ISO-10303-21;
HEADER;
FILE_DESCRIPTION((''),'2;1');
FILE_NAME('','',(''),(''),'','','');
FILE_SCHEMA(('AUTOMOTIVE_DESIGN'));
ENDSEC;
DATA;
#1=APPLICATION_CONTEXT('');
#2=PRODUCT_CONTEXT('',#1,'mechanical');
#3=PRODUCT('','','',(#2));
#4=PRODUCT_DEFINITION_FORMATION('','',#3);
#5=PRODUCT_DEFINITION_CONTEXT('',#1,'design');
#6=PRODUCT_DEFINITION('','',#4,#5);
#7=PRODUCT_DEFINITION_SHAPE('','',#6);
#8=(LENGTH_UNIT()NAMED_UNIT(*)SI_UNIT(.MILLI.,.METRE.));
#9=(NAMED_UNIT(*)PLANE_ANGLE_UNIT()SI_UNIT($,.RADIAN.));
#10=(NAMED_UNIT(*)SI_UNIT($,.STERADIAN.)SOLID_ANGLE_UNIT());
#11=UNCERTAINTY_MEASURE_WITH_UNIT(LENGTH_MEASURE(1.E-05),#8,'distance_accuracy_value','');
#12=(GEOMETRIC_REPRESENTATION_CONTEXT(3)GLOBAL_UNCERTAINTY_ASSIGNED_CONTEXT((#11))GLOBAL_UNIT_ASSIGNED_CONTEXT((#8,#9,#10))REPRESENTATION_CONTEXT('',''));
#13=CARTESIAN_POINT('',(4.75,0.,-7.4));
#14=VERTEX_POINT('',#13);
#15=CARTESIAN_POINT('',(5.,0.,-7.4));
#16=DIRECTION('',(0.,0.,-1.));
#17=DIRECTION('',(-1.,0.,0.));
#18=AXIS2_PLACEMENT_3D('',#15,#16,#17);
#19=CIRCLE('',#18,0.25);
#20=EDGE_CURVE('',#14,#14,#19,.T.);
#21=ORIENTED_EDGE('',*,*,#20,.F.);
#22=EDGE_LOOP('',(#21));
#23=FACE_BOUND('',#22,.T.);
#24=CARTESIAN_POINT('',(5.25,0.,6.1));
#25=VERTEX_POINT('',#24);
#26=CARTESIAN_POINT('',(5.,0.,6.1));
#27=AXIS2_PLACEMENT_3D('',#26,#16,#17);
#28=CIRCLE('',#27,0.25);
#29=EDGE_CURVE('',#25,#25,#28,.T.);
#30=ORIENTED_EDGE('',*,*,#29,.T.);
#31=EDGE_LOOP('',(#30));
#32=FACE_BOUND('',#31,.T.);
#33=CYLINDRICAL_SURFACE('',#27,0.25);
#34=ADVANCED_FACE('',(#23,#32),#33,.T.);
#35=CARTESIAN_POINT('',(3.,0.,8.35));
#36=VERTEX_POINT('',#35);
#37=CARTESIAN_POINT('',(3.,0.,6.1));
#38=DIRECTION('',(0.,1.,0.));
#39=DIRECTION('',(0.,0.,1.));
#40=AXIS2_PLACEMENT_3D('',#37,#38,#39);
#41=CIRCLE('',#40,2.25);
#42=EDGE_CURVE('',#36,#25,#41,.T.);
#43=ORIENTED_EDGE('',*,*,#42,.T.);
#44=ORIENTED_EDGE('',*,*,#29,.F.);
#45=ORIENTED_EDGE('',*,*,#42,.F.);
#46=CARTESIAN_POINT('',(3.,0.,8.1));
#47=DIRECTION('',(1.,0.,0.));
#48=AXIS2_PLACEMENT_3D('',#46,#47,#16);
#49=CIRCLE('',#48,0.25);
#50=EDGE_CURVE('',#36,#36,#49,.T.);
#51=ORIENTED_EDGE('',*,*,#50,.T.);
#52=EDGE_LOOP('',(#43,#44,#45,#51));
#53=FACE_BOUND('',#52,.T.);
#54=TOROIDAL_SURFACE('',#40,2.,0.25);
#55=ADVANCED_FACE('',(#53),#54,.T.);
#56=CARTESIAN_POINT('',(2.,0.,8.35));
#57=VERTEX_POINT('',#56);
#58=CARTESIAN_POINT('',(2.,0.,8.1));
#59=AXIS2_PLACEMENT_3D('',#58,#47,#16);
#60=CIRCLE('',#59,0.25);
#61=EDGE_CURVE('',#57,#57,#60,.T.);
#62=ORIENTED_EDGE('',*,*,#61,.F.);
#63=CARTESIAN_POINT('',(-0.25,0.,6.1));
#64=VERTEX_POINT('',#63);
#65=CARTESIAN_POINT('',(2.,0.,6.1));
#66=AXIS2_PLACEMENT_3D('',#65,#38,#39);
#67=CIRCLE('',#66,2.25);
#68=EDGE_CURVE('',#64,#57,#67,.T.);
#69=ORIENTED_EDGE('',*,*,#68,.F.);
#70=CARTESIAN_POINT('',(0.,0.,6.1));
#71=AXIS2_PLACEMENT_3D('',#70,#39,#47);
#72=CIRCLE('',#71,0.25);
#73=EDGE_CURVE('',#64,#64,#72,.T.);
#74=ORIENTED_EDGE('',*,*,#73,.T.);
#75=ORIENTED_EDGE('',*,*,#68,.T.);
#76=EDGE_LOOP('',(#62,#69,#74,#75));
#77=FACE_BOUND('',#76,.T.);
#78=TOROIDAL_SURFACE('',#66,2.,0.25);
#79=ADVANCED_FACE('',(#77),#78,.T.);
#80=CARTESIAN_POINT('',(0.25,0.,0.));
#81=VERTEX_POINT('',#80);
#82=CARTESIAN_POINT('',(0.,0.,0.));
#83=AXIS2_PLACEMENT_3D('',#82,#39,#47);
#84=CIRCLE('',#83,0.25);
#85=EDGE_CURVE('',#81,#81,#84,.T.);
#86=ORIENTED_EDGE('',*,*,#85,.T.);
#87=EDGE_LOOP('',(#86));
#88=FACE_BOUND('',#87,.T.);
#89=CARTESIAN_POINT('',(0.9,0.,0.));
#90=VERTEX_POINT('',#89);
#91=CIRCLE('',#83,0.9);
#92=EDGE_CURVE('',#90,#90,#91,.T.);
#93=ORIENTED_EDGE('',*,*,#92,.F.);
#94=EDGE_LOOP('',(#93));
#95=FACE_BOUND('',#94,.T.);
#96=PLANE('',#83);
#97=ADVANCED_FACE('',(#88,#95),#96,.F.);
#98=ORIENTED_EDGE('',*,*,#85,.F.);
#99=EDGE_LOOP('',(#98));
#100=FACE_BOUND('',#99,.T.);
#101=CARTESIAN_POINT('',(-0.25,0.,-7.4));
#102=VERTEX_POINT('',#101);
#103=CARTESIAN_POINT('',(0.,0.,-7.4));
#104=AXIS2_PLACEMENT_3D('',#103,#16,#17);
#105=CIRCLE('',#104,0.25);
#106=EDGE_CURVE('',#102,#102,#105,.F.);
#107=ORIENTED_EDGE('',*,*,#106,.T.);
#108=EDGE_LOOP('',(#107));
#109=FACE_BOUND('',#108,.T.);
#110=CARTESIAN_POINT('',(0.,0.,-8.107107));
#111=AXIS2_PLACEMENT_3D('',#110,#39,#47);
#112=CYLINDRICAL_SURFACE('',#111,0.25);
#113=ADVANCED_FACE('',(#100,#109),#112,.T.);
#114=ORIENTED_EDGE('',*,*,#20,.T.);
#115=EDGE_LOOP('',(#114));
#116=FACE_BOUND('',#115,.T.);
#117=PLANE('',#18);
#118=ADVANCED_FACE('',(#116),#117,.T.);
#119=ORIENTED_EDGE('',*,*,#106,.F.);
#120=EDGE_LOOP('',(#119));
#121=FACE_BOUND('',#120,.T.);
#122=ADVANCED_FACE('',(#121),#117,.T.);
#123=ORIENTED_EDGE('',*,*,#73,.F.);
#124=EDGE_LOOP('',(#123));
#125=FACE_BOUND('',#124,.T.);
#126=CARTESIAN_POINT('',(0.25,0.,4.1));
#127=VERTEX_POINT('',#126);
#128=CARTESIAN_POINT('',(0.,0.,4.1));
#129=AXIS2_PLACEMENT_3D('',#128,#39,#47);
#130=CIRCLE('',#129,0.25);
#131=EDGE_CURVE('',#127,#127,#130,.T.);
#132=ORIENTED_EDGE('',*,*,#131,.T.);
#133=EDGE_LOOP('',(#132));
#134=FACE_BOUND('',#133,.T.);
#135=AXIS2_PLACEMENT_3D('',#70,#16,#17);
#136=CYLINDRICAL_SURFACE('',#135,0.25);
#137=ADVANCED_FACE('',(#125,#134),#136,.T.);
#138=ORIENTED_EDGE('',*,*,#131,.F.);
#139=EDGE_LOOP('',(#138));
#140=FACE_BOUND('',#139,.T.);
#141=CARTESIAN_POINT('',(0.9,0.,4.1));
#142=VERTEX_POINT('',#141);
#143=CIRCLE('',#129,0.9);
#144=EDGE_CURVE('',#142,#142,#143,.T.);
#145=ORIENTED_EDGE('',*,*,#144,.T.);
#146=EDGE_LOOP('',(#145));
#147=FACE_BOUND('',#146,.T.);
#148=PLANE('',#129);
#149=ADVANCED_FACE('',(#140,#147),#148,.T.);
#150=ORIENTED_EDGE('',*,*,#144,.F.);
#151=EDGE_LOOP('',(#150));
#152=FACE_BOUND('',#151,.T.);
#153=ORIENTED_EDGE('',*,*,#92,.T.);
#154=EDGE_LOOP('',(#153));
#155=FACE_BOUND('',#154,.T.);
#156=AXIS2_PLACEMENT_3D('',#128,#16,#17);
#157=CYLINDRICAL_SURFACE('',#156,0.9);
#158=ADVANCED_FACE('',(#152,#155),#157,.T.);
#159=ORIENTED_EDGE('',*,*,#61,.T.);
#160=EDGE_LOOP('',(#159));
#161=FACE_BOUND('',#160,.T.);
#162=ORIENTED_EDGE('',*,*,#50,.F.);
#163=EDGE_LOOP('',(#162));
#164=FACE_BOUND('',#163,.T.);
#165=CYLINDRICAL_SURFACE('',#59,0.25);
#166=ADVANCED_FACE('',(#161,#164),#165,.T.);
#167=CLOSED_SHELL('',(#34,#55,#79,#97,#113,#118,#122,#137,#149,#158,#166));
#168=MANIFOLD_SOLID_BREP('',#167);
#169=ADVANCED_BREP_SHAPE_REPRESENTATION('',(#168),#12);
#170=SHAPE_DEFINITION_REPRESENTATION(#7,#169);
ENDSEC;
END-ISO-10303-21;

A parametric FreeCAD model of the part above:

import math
import FreeCAD as App
import Part
import Sketcher

doc = App.newDocument("Part")
body = doc.addObject("PartDesign::Body", "Body")

# Sketch on XY plane
sketch1 = body.newObject("Sketcher::SketchObject", "Sketch")
sketch1.AttachmentSupport = (doc.getObject("XY_Plane"), [""])
sketch1.MapMode = "FlatFace"
sketch1.addGeometry(Part.Circle(App.Vector(0, 0, 0), App.Vector(0, 0, 1), 0.9), False)
sketch1.addConstraint(Sketcher.Constraint("Coincident", 0, 3, -1, 1))
sketch1.addConstraint(Sketcher.Constraint("Diameter", 0, 1.8))
pad1 = body.newObject("PartDesign::Pad", "Pad")
pad1.Profile = sketch1
pad1.Length = 4.1

# Sketch on XY plane
sketch2 = body.newObject("Sketcher::SketchObject", "Sketch001")
sketch2.AttachmentSupport = (doc.getObject("XY_Plane"), [""])
sketch2.MapMode = "FlatFace"
sketch2.AttachmentOffset = App.Placement(App.Vector(0, 0, 4.1), App.Rotation())
sketch2.addGeometry(Part.Circle(App.Vector(0, 0, 0), App.Vector(0, 0, 1), 0.25), False)
sketch2.addConstraint(Sketcher.Constraint("Coincident", 0, 3, -1, 1))
sketch2.addConstraint(Sketcher.Constraint("Diameter", 0, 0.5))

# Sketch on XZ plane
sketch3 = body.newObject("Sketcher::SketchObject", "Sketch002")
sketch3.AttachmentSupport = (doc.getObject("XZ_Plane"), [""])
sketch3.MapMode = "FlatFace"
sketch3.addGeometry(Part.LineSegment(App.Vector(5, -7.4, 0), App.Vector(5, 6.1, 0)), False)
sketch3.addGeometry(Part.ArcOfCircle(Part.Circle(App.Vector(3, 6.1, 0), App.Vector(0, 0, 1), 2), math.radians(0), math.radians(90)), False)
sketch3.addGeometry(Part.LineSegment(App.Vector(3, 8.1, 0), App.Vector(2, 8.1, 0)), False)
sketch3.addGeometry(Part.ArcOfCircle(Part.Circle(App.Vector(2, 6.1, 0), App.Vector(0, 0, 1), 2), math.radians(90), math.radians(180)), False)
sketch3.addGeometry(Part.LineSegment(App.Vector(0, 6.1, 0), App.Vector(0, 4.1, 0)), False)
sketch3.addConstraint(Sketcher.Constraint("Tangent", 0, 2, 1, 1))
sketch3.addConstraint(Sketcher.Constraint("Tangent", 1, 2, 2, 1))
sketch3.addConstraint(Sketcher.Constraint("Tangent", 2, 2, 3, 1))
sketch3.addConstraint(Sketcher.Constraint("Tangent", 3, 2, 4, 1))
sketch3.addConstraint(Sketcher.Constraint("Vertical", 0))
sketch3.addConstraint(Sketcher.Constraint("Horizontal", 2))
sketch3.addConstraint(Sketcher.Constraint("Vertical", 4))
sketch3.addConstraint(Sketcher.Constraint("Equal", 1, 3))
sketch3.addConstraint(Sketcher.Constraint("PointOnObject", 3, 2, -2))
sketch3.addConstraint(Sketcher.Constraint("Radius", 1, 2.0))
sketch3.addConstraint(Sketcher.Constraint("DistanceX", 2, 2, 2, 1, 1.0))
sketch3.addConstraint(Sketcher.Constraint("DistanceY", 4, 2, 4, 1, 2.0))
sketch3.addConstraint(Sketcher.Constraint("DistanceY", 0, 1, 0, 2, 13.5))
sketch3.addConstraint(Sketcher.Constraint("DistanceY", -1, 1, 1, 3, 6.1))
doc.recompute()

additivepipe = body.newObject("PartDesign::AdditivePipe", "AdditivePipe")
additivepipe.Profile = sketch2
additivepipe.Spine = (sketch3, ["Edge1", "Edge2", "Edge3", "Edge4", "Edge5"])

# Sketch on XY plane
sketch4 = body.newObject("Sketcher::SketchObject", "Sketch003")
sketch4.AttachmentSupport = (doc.getObject("XY_Plane"), [""])
sketch4.MapMode = "FlatFace"
sketch4.AttachmentOffset = App.Placement(App.Vector(0, 0, -7.4), App.Rotation())
sketch4.addGeometry(Part.Circle(App.Vector(0, 0, 0), App.Vector(0, 0, 1), 0.25), False)
sketch4.addConstraint(Sketcher.Constraint("Coincident", 0, 3, -1, 1))
sketch4.addConstraint(Sketcher.Constraint("Diameter", 0, 0.5))
pad2 = body.newObject("PartDesign::Pad", "Pad001")
pad2.Profile = sketch4
pad2.Length = 7.4

doc.recompute()
